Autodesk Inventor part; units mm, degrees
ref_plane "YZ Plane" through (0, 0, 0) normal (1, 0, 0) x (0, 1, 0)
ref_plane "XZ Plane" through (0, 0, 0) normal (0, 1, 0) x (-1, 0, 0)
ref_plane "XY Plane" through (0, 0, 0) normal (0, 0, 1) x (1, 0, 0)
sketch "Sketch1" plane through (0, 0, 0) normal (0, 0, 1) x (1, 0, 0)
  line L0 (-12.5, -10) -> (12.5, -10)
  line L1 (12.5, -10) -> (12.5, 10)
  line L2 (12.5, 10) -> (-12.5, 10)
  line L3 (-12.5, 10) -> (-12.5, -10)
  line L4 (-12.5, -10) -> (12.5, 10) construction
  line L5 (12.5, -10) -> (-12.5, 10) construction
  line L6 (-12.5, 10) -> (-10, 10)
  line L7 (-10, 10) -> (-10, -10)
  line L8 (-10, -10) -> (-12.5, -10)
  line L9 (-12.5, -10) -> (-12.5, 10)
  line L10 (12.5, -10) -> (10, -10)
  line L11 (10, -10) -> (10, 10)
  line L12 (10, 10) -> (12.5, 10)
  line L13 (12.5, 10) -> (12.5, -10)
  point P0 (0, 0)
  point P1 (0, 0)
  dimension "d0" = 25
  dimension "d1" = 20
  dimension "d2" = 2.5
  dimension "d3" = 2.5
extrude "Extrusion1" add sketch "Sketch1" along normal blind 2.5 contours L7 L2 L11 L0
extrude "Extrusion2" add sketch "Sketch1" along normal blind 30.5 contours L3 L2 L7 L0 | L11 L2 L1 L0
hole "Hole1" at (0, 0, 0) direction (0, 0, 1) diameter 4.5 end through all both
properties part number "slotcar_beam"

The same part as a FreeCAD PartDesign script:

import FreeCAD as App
import Part
import Sketcher

doc = App.newDocument("Part")
body = doc.addObject("PartDesign::Body", "Body")

# Sketch on XY plane
sketch1 = body.newObject("Sketcher::SketchObject", "Sketch")
sketch1.AttachmentSupport = (doc.getObject("XY_Plane"), [""])
sketch1.MapMode = "FlatFace"
sketch1.addGeometry(Part.LineSegment(App.Vector(-10, 10, 0), App.Vector(-10, -10, 0)), False)
sketch1.addGeometry(Part.LineSegment(App.Vector(-10, -10, 0), App.Vector(10, -10, 0)), False)
sketch1.addGeometry(Part.LineSegment(App.Vector(10, -10, 0), App.Vector(10, 10, 0)), False)
sketch1.addGeometry(Part.LineSegment(App.Vector(10, 10, 0), App.Vector(-10, 10, 0)), False)
sketch1.addConstraint(Sketcher.Constraint("Coincident", 0, 2, 1, 1))
sketch1.addConstraint(Sketcher.Constraint("Coincident", 1, 2, 2, 1))
sketch1.addConstraint(Sketcher.Constraint("Coincident", 2, 2, 3, 1))
sketch1.addConstraint(Sketcher.Constraint("Coincident", 3, 2, 0, 1))
sketch1.addConstraint(Sketcher.Constraint("Vertical", 0))
sketch1.addConstraint(Sketcher.Constraint("Horizontal", 1))
sketch1.addConstraint(Sketcher.Constraint("Vertical", 2))
sketch1.addConstraint(Sketcher.Constraint("Horizontal", 3))
sketch1.addConstraint(Sketcher.Constraint("Symmetric", 0, 2, 2, 2, -1, 1))
sketch1.addConstraint(Sketcher.Constraint("Equal", 3, 0))
sketch1.addConstraint(Sketcher.Constraint("DistanceX", 1, 1, 1, 2, 20.0))
pad1 = body.newObject("PartDesign::Pad", "Pad")
pad1.Profile = sketch1
pad1.Length = 2.5

# Sketch on XY plane
sketch2 = body.newObject("Sketcher::SketchObject", "Sketch001")
sketch2.AttachmentSupport = (doc.getObject("XY_Plane"), [""])
sketch2.MapMode = "FlatFace"
sketch2.addGeometry(Part.LineSegment(App.Vector(-12.5, 10, 0), App.Vector(-12.5, -10, 0)), False)
sketch2.addGeometry(Part.LineSegment(App.Vector(-12.5, -10, 0), App.Vector(-10, -10, 0)), False)
sketch2.addGeometry(Part.LineSegment(App.Vector(-10, -10, 0), App.Vector(-10, 10, 0)), False)
sketch2.addGeometry(Part.LineSegment(App.Vector(-10, 10, 0), App.Vector(-12.5, 10, 0)), False)
sketch2.addGeometry(Part.LineSegment(App.Vector(10, 10, 0), App.Vector(10, -10, 0)), False)
sketch2.addGeometry(Part.LineSegment(App.Vector(10, -10, 0), App.Vector(12.5, -10, 0)), False)
sketch2.addGeometry(Part.LineSegment(App.Vector(12.5, -10, 0), App.Vector(12.5, 10, 0)), False)
sketch2.addGeometry(Part.LineSegment(App.Vector(12.5, 10, 0), App.Vector(10, 10, 0)), False)
sketch2.addConstraint(Sketcher.Constraint("Coincident", 0, 2, 1, 1))
sketch2.addConstraint(Sketcher.Constraint("Coincident", 1, 2, 2, 1))
sketch2.addConstraint(Sketcher.Constraint("Coincident", 2, 2, 3, 1))
sketch2.addConstraint(Sketcher.Constraint("Coincident", 3, 2, 0, 1))
sketch2.addConstraint(Sketcher.Constraint("Coincident", 4, 2, 5, 1))
sketch2.addConstraint(Sketcher.Constraint("Coincident", 5, 2, 6, 1))
sketch2.addConstraint(Sketcher.Constraint("Coincident", 6, 2, 7, 1))
sketch2.addConstraint(Sketcher.Constraint("Coincident", 7, 2, 4, 1))
sketch2.addConstraint(Sketcher.Constraint("Vertical", 0))
sketch2.addConstraint(Sketcher.Constraint("Horizontal", 1))
sketch2.addConstraint(Sketcher.Constraint("Vertical", 2))
sketch2.addConstraint(Sketcher.Constraint("Horizontal", 3))
sketch2.addConstraint(Sketcher.Constraint("Vertical", 4))
sketch2.addConstraint(Sketcher.Constraint("Horizontal", 5))
sketch2.addConstraint(Sketcher.Constraint("Vertical", 6))
sketch2.addConstraint(Sketcher.Constraint("Horizontal", 7))
sketch2.addConstraint(Sketcher.Constraint("Symmetric", 2, 2, 4, 2, -1, 1))
sketch2.addConstraint(Sketcher.Constraint("Symmetric", 0, 2, 6, 2, -1, 1))
sketch2.addConstraint(Sketcher.Constraint("Horizontal", 1, 2, 4, 2))
sketch2.addConstraint(Sketcher.Constraint("DistanceY", 0, 2, 0, 1, 20.0))
sketch2.addConstraint(Sketcher.Constraint("DistanceX", 1, 1, 1, 2, 2.5))
sketch2.addConstraint(Sketcher.Constraint("DistanceX", 1, 2, 4, 2, 20.0))
pad2 = body.newObject("PartDesign::Pad", "Pad001")
pad2.Profile = sketch2
pad2.Length = 30.5

# Sketch on XY plane
sketch3 = body.newObject("Sketcher::SketchObject", "Sketch002")
sketch3.AttachmentSupport = (doc.getObject("XY_Plane"), [""])
sketch3.MapMode = "FlatFace"
sketch3.addGeometry(Part.Circle(App.Vector(0, 0, 0), App.Vector(0, 0, 1), 2.2), False)
sketch3.addConstraint(Sketcher.Constraint("Coincident", 0, 3, -1, 1))
sketch3.addConstraint(Sketcher.Constraint("Diameter", 0, 4.5))
doc.recompute()
hole = body.newObject("PartDesign::Hole", "Hole")
hole.Profile = sketch3
hole.ThreadType = "None"
hole.Diameter = 4.5
hole.DepthType = "ThroughAll"
hole.Reversed = True

doc.recompute()
